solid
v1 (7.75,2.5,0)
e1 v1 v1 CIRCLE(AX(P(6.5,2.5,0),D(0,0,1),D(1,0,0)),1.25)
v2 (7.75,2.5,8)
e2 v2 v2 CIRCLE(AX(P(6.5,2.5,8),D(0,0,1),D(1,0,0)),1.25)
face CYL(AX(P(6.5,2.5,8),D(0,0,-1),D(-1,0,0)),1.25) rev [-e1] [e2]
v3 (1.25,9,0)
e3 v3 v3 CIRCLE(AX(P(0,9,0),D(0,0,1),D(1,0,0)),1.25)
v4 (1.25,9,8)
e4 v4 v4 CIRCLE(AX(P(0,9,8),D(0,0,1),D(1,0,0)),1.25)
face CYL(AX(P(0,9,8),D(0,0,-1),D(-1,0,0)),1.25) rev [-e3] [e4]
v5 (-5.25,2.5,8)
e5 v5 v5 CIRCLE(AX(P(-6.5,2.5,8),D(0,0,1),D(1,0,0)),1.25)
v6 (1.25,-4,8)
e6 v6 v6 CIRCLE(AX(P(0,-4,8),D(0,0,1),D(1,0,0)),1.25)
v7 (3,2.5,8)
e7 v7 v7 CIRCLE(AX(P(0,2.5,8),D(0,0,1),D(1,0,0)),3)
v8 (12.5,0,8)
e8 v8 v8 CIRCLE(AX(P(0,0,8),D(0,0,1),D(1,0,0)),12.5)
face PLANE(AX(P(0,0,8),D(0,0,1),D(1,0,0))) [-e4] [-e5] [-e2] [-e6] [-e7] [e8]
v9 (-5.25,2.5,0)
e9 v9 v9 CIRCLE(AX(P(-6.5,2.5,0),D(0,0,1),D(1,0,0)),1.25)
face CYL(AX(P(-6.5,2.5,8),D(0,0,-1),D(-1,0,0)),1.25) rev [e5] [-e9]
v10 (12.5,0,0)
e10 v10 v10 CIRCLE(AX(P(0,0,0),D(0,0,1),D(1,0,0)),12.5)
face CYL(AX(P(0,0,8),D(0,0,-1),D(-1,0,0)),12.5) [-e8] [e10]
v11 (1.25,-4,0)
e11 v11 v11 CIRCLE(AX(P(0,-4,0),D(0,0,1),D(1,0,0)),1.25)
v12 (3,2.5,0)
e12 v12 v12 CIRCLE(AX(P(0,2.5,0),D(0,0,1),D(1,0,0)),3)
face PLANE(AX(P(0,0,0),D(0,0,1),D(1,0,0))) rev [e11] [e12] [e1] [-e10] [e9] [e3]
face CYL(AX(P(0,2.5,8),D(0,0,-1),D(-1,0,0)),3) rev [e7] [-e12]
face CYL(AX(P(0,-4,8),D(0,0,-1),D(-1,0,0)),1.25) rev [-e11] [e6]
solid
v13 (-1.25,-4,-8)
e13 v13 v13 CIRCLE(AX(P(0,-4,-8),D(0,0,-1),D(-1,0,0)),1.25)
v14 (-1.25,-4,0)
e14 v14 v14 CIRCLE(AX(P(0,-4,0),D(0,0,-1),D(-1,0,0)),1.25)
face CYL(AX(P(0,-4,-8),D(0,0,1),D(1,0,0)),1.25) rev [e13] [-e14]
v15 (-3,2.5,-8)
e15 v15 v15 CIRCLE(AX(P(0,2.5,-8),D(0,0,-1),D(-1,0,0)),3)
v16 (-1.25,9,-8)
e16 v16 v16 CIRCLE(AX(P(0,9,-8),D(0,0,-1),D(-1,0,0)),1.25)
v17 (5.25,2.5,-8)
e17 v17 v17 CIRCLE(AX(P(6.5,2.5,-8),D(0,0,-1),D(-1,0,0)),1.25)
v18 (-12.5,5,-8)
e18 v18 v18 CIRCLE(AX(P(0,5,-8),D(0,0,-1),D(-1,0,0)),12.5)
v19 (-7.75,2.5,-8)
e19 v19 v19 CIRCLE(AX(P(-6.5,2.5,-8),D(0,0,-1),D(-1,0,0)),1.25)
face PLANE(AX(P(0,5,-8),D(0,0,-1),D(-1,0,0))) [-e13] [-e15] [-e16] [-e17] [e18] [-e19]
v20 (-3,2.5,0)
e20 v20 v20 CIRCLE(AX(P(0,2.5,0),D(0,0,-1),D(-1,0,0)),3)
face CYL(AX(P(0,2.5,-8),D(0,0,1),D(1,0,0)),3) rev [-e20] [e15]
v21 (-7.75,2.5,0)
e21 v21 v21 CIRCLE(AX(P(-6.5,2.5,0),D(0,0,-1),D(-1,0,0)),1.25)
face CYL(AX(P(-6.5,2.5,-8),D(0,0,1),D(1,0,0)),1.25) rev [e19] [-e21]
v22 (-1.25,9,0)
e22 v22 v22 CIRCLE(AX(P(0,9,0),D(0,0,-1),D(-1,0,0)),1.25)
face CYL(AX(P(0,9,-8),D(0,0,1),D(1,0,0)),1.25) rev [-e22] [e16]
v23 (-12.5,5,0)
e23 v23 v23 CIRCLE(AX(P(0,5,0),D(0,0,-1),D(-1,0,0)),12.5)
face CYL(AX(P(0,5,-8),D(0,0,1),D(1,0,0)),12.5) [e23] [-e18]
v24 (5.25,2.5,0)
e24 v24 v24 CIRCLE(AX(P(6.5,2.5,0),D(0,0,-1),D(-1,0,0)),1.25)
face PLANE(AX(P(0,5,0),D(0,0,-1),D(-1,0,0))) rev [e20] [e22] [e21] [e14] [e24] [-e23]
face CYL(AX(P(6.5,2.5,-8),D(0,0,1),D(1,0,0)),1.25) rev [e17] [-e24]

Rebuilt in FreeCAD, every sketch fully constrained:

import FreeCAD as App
import Part
import Sketcher

V = App.Vector
Q = App.Units.Quantity

doc = App.newDocument("Part")
body = doc.addObject("PartDesign::Body", "Body")

sketch1 = doc.addObject("Sketcher::SketchObject", "Sketch")
body.addObject(sketch1)
sketch1.AttachmentSupport = (doc.XY_Plane, [""])
sketch1.MapMode = "FlatFace"
sketch1.addGeometry([
    Part.Circle(V(0, 0, 0), V(0, 0, 1), 12.5),
    Part.Circle(V(0, -4, 0), V(0, 0, 1), 1.25),
    Part.Circle(V(-6.5, 2.5, 0), V(0, 0, 1), 1.25),
    Part.Circle(V(0, 2.5, 0), V(0, 0, 1), 3),
    Part.Circle(V(6.5, 2.5, 0), V(0, 0, 1), 1.25),
    Part.Circle(V(0, 9, 0), V(0, 0, 1), 1.25),
], False)
sketch1.addConstraint([
    Sketcher.Constraint("Coincident", 0, 3, -1, 1),
    Sketcher.Constraint("Equal", 1, 2),
    Sketcher.Constraint("Equal", 2, 4),
    Sketcher.Constraint("Equal", 4, 5),
    Sketcher.Constraint("Symmetric", 2, 3, 4, 3, -2),
    Sketcher.Constraint("PointOnObject", 1, 3, -2),
    Sketcher.Constraint("PointOnObject", 3, 3, -2),
    Sketcher.Constraint("PointOnObject", 5, 3, -2),
    Sketcher.Constraint("Horizontal", 2, 3, 3, 3),
    Sketcher.Constraint("Diameter", 0, Q("25 mm")),
    Sketcher.Constraint("Diameter", 3, Q("6 mm")),
    Sketcher.Constraint("Diameter", 1, Q("2.5 mm")),
    Sketcher.Constraint("DistanceY", 1, 3, -1, 1, Q("4 mm")),
    Sketcher.Constraint("DistanceY", -1, 1, 5, 3, Q("9 mm")),
    Sketcher.Constraint("DistanceX", 2, 3, 4, 3, Q("13 mm")),
    Sketcher.Constraint("DistanceY", -1, 1, 2, 3, Q("2.5 mm")),
])
pad1 = doc.addObject("PartDesign::Pad", "Pad")
body.addObject(pad1)
pad1.Profile = sketch1
pad1.Length = 8
body2 = doc.addObject("PartDesign::Body", "Body001")

sketch2 = doc.addObject("Sketcher::SketchObject", "Sketch001")
body2.addObject(sketch2)
sketch2.AttachmentSupport = (doc.getObject("XY_Plane001"), [""])
sketch2.MapMode = "FlatFace"
sketch2.addGeometry([
    Part.Circle(V(0, 5, 0), V(0, 0, 1), 12.5),
    Part.Circle(V(6.5, 2.5, 0), V(0, 0, 1), 1.25),
    Part.Circle(V(0, -4, 0), V(0, 0, 1), 1.25),
    Part.Circle(V(0, 2.5, 0), V(0, 0, 1), 3),
    Part.Circle(V(-6.5, 2.5, 0), V(0, 0, 1), 1.25),
    Part.Circle(V(0, 9, 0), V(0, 0, 1), 1.25),
], False)
sketch2.addConstraint([
    Sketcher.Constraint("Equal", 1, 2),
    Sketcher.Constraint("Equal", 2, 4),
    Sketcher.Constraint("Equal", 4, 5),
    Sketcher.Constraint("Symmetric", 1, 3, 4, 3, -2),
    Sketcher.Constraint("PointOnObject", 0, 3, -2),
    Sketcher.Constraint("PointOnObject", 2, 3, -2),
    Sketcher.Constraint("PointOnObject", 3, 3, -2),
    Sketcher.Constraint("PointOnObject", 5, 3, -2),
    Sketcher.Constraint("Horizontal", 1, 3, 3, 3),
    Sketcher.Constraint("Diameter", 0, Q("25 mm")),
    Sketcher.Constraint("Diameter", 3, Q("6 mm")),
    Sketcher.Constraint("Diameter", 1, Q("2.5 mm")),
    Sketcher.Constraint("DistanceY", -1, 1, 0, 3, Q("5 mm")),
    Sketcher.Constraint("DistanceY", 2, 3, -1, 1, Q("4 mm")),
    Sketcher.Constraint("DistanceY", -1, 1, 5, 3, Q("9 mm")),
    Sketcher.Constraint("DistanceX", 4, 3, 1, 3, Q("13 mm")),
    Sketcher.Constraint("DistanceY", -1, 1, 1, 3, Q("2.5 mm")),
])
pad2 = doc.addObject("PartDesign::Pad", "Pad001")
body2.addObject(pad2)
pad2.Profile = sketch2
pad2.Length = 8
pad2.Reversed = True

doc.recompute()
